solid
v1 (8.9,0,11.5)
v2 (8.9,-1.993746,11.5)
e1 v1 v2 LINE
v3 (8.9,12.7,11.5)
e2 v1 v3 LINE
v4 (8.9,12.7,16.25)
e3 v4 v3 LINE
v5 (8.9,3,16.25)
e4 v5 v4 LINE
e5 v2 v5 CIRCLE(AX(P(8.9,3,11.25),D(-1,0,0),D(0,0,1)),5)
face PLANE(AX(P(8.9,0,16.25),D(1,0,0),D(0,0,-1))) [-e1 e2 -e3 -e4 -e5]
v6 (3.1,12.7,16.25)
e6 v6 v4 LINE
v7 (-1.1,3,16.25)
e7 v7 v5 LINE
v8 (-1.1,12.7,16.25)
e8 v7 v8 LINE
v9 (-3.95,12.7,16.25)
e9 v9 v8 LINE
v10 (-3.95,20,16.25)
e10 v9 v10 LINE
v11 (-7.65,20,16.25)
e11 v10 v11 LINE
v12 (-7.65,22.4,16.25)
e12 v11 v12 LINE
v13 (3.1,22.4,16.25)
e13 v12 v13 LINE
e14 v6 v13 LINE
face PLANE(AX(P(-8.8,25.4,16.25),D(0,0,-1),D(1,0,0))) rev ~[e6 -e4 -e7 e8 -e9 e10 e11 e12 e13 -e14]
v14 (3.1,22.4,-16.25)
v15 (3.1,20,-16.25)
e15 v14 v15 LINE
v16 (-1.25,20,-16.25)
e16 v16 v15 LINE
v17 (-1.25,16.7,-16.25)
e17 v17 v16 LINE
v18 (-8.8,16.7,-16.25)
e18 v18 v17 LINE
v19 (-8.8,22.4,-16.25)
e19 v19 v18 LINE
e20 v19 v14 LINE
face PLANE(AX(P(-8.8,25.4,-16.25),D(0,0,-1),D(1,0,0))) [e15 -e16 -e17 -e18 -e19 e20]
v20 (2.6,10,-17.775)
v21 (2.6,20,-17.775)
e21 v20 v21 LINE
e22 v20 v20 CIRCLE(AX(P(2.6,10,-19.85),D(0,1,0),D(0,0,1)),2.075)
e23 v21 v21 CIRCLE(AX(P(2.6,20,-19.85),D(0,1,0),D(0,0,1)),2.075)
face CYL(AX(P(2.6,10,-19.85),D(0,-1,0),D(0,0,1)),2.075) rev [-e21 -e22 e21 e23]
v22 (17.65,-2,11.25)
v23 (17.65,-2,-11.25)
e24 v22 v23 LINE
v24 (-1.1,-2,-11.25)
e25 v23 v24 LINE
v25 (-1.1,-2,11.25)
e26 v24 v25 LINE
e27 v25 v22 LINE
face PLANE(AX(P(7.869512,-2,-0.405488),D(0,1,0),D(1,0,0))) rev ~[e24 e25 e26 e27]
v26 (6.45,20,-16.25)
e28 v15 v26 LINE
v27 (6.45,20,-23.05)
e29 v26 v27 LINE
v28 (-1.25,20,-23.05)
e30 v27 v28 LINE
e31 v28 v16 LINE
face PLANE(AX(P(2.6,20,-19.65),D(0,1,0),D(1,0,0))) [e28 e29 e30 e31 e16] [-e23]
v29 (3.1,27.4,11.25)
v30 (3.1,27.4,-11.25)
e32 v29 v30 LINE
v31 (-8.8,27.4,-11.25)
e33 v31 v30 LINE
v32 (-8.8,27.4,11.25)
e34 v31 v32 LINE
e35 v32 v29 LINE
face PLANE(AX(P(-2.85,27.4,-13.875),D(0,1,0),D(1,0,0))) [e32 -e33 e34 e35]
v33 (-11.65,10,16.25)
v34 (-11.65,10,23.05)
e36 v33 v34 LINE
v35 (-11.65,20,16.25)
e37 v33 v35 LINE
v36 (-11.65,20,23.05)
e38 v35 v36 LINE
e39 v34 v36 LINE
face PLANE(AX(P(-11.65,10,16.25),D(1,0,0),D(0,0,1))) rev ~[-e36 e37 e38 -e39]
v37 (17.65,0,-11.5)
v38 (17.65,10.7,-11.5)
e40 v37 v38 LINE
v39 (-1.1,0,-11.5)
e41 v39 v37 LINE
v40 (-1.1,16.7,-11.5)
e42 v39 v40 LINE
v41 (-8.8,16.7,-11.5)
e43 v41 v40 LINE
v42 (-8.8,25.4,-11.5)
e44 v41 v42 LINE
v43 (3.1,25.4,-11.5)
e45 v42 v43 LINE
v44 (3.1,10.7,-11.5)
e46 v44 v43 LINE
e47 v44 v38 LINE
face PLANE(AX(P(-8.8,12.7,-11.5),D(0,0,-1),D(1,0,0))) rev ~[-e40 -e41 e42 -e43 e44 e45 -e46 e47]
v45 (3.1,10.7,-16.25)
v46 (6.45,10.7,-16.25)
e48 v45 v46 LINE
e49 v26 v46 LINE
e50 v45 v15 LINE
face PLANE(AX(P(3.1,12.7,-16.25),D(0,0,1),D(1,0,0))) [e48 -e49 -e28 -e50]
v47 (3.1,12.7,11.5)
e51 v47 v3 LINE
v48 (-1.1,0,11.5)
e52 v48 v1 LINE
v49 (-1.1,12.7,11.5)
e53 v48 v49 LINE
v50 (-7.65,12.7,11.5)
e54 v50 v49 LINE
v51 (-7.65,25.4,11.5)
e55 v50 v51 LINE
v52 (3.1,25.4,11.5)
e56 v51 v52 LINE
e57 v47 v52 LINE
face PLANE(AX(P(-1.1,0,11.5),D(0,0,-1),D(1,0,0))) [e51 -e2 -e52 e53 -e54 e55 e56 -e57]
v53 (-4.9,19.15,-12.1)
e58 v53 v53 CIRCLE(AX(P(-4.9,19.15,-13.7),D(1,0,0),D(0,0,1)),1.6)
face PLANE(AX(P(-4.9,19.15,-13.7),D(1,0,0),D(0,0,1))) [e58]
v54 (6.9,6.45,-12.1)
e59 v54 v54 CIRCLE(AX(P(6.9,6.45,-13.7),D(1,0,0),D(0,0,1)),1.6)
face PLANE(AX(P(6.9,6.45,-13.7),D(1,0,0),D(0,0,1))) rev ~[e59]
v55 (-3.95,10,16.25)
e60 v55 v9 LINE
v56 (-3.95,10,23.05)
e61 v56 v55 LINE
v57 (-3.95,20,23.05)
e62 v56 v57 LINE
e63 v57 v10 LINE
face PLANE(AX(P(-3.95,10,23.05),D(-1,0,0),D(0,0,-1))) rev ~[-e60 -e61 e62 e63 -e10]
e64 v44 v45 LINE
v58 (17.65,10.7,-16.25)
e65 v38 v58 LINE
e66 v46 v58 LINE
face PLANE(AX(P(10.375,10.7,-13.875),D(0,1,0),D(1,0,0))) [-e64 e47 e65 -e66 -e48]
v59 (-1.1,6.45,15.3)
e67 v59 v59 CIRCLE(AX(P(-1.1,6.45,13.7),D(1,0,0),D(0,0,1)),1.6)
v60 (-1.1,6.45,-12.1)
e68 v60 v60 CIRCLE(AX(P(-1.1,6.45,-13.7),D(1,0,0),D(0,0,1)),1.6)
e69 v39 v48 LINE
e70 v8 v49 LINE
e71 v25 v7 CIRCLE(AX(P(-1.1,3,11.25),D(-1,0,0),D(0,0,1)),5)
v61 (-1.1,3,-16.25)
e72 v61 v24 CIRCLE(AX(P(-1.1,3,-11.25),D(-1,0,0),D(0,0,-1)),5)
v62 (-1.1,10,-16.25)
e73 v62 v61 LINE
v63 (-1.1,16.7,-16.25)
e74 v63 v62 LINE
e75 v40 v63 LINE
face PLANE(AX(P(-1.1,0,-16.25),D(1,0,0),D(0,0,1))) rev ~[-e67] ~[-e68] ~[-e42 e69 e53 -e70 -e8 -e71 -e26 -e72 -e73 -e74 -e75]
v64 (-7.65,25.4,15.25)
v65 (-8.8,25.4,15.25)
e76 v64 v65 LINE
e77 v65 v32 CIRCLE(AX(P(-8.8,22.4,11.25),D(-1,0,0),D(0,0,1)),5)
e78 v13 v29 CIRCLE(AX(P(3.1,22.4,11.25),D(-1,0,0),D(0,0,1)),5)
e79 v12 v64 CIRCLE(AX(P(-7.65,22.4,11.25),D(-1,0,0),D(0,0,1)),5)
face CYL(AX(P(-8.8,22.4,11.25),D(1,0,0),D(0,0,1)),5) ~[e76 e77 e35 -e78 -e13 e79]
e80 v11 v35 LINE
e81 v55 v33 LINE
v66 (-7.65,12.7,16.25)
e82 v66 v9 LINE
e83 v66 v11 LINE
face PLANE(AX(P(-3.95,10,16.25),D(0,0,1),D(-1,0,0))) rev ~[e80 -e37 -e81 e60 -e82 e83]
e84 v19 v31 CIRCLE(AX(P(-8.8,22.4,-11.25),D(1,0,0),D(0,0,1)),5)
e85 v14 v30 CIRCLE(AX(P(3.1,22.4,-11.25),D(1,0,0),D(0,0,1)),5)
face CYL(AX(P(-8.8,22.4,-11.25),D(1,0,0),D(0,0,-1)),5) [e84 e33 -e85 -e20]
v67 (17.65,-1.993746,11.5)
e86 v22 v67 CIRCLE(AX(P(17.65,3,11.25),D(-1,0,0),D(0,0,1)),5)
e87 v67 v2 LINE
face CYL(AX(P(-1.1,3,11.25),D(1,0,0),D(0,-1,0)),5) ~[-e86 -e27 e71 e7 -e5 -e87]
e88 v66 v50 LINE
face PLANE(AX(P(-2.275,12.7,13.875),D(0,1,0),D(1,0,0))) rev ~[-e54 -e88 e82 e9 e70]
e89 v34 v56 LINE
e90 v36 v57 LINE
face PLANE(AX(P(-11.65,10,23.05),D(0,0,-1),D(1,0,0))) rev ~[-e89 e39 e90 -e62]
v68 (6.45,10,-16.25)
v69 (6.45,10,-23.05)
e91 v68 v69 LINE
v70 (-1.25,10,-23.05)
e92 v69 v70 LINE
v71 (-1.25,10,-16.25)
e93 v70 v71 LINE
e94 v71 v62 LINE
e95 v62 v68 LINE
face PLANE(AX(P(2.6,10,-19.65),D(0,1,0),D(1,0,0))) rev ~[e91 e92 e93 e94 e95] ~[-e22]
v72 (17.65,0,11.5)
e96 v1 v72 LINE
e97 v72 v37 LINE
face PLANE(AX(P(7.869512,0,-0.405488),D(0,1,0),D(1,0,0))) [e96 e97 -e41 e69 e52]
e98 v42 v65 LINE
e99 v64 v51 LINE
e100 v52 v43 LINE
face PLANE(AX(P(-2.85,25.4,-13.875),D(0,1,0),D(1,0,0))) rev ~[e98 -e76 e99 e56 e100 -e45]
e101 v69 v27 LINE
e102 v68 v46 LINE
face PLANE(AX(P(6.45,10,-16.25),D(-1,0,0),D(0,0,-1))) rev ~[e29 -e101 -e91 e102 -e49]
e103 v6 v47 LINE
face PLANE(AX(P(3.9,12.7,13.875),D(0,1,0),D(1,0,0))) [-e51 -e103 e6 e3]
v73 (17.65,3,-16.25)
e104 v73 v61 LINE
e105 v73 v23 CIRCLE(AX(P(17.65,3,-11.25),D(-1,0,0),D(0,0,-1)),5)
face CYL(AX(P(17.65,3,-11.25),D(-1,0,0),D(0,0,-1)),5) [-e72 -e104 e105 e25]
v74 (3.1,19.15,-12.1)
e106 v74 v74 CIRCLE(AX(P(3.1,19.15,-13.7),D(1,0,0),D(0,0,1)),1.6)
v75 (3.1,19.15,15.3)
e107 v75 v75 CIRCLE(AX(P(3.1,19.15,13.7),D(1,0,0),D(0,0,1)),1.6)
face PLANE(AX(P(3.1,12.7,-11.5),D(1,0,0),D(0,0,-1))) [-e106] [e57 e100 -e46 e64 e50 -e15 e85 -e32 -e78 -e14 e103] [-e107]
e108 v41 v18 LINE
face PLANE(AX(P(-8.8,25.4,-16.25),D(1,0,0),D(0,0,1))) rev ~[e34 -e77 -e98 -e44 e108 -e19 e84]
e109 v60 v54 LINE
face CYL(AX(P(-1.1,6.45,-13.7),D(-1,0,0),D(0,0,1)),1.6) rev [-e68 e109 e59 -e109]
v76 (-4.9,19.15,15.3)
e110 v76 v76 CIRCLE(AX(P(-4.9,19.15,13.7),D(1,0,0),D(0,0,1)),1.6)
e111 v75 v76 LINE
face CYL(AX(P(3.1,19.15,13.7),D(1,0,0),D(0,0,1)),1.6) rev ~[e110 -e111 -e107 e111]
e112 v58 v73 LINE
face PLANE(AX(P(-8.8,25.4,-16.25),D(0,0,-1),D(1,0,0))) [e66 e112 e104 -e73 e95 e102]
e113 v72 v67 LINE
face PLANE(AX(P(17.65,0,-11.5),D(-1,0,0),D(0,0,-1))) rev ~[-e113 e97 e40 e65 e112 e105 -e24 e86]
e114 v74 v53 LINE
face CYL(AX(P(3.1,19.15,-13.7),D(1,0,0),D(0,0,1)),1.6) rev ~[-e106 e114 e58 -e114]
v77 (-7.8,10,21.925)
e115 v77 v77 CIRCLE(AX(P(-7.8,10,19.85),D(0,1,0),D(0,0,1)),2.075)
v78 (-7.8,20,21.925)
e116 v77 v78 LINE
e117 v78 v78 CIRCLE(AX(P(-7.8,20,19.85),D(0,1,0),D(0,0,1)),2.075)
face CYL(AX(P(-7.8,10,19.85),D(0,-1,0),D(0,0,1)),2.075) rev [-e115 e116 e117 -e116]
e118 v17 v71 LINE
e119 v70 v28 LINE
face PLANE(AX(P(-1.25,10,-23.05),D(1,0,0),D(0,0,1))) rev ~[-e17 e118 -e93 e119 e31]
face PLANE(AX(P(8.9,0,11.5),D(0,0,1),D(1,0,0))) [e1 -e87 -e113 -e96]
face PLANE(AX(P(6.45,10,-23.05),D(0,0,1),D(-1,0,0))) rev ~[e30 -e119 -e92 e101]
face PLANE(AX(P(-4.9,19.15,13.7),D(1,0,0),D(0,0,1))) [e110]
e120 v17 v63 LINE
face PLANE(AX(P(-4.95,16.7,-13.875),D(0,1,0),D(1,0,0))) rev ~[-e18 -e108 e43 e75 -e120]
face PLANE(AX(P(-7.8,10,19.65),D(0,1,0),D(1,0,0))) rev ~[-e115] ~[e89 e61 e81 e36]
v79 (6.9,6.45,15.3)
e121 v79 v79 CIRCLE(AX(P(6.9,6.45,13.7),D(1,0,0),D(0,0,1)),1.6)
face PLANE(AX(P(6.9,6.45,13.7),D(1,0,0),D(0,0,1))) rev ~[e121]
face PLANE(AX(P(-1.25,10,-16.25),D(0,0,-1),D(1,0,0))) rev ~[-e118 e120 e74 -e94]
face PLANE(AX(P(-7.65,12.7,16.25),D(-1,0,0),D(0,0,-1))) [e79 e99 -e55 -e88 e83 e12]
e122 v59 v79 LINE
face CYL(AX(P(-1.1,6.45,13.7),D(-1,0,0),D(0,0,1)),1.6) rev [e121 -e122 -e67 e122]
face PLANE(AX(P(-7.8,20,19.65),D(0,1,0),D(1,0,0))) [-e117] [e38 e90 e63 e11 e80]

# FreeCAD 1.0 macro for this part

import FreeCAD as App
import Part
import Sketcher
Q = App.Units.Quantity


def edges_at(feature, points):
    """Names of the edges that pass closest to the given points."""
    edges = feature.Shape.Edges
    near = lambda p: min(range(len(edges)), key=lambda i: edges[i].distToShape(Part.Vertex(*p))[0])
    return sorted({f"Edge{near(p) + 1}" for p in points})


def add_polygon(sketch, points):
    """Adds a closed chain of lines whose ends are joined by coincident constraints."""
    first, n = sketch.GeometryCount, len(points)
    for a, b in zip(points, points[1:] + points[:1]):
        sketch.addGeometry(Part.LineSegment(App.Vector(*a, 0), App.Vector(*b, 0)), False)
    for i in range(n):
        sketch.addConstraint(Sketcher.Constraint("Coincident", first + i, 2, first + (i + 1) % n, 1))

doc = App.newDocument("Part")
body = doc.addObject("PartDesign::Body", "Body")

# Sketch on XZ plane
sketch1 = body.newObject("Sketcher::SketchObject", "Sketch")
sketch1.AttachmentSupport = (doc.getObject("XZ_Plane"), [""])
sketch1.MapMode = "FlatFace"
add_polygon(sketch1, [(-1.1, -16.25), (-1.1, 16.25), (8.9, 16.25), (8.9, 11.5), (17.65, 11.5), (17.65, -16.25)])  # lines 0-5
sketch1.addConstraint([
    Sketcher.Constraint("Vertical", 0),
    Sketcher.Constraint("Horizontal", 1),
    Sketcher.Constraint("Vertical", 2),
    Sketcher.Constraint("Horizontal", 3),
    Sketcher.Constraint("Vertical", 4),
    Sketcher.Constraint("Horizontal", 5),
    Sketcher.Constraint("DistanceX", 1, 1, 1, 2, Q("10 mm")),
    Sketcher.Constraint("DistanceY", 0, 1, 0, 2, Q("32.5 mm")),
    Sketcher.Constraint("DistanceX", 3, 1, 3, 2, Q("8.75 mm")),
    Sketcher.Constraint("DistanceY", 2, 2, 2, 1, Q("4.75 mm")),
    Sketcher.Constraint("DistanceX", 0, 2, -1, 1, Q("1.1 mm")),
    Sketcher.Constraint("DistanceY", -1, 1, 2, 2, Q("11.5 mm")),
])
pad1 = body.newObject("PartDesign::Pad", "Pad")
pad1.Profile = sketch1
pad1.Length = 2

# Sketch on XZ plane
sketch2 = body.newObject("Sketcher::SketchObject", "Sketch001")
sketch2.AttachmentSupport = (doc.getObject("XZ_Plane"), [""])
sketch2.MapMode = "FlatFace"
add_polygon(sketch2, [(-1.1, -16.25), (-1.1, -11.5), (17.65, -11.5), (17.65, -16.25)])  # lines 0-3
add_polygon(sketch2, [(-1.1, 11.5), (-1.1, 16.25), (8.9, 16.25), (8.9, 11.5)])  # lines 4-7
sketch2.addConstraint([
    Sketcher.Constraint("Vertical", 0),
    Sketcher.Constraint("Horizontal", 1),
    Sketcher.Constraint("Vertical", 2),
    Sketcher.Constraint("Horizontal", 3),
    Sketcher.Constraint("Vertical", 4),
    Sketcher.Constraint("Horizontal", 5),
    Sketcher.Constraint("Vertical", 6),
    Sketcher.Constraint("Horizontal", 7),
    Sketcher.Constraint("Symmetric", 3, 2, 4, 2, -1),
    Sketcher.Constraint("Equal", 2, 4),
    Sketcher.Constraint("DistanceX", 5, 1, 5, 2, Q("10 mm")),
    Sketcher.Constraint("DistanceY", 1, 2, 6, 2, Q("23 mm")),
    Sketcher.Constraint("DistanceX", 1, 1, 1, 2, Q("18.75 mm")),
    Sketcher.Constraint("DistanceY", 0, 1, 0, 2, Q("4.75 mm")),
    Sketcher.Constraint("DistanceX", 0, 2, -1, 1, Q("1.1 mm")),
])
pad2 = body.newObject("PartDesign::Pad", "Pad001")
pad2.Profile = sketch2
pad2.Length = 12.7
pad2.Reversed = True

# Sketch on XZ plane
sketch3 = body.newObject("Sketcher::SketchObject", "Sketch002")
sketch3.AttachmentSupport = (doc.getObject("XZ_Plane"), [""])
sketch3.MapMode = "FlatFace"
sketch3.AttachmentOffset = App.Placement(App.Vector(0, 0, -12.7), App.Rotation())
add_polygon(sketch3, [(-8.8, -16.25), (-8.8, -11.5), (3.1, -11.5), (3.1, -16.25)])  # lines 0-3
add_polygon(sketch3, [(-7.65, 11.5), (-7.65, 16.25), (3.1, 16.25), (3.1, 11.5)])  # lines 4-7
sketch3.addConstraint([
    Sketcher.Constraint("Vertical", 0),
    Sketcher.Constraint("Horizontal", 1),
    Sketcher.Constraint("Vertical", 2),
    Sketcher.Constraint("Horizontal", 3),
    Sketcher.Constraint("Vertical", 4),
    Sketcher.Constraint("Horizontal", 5),
    Sketcher.Constraint("Vertical", 6),
    Sketcher.Constraint("Horizontal", 7),
    Sketcher.Constraint("Symmetric", 2, 2, 5, 2, -1),
    Sketcher.Constraint("Equal", 2, 4),
    Sketcher.Constraint("DistanceX", 1, 1, 1, 2, Q("11.9 mm")),
    Sketcher.Constraint("DistanceY", 1, 2, 6, 2, Q("23 mm")),
    Sketcher.Constraint("DistanceX", 5, 1, 5, 2, Q("10.75 mm")),
    Sketcher.Constraint("DistanceY", 0, 1, 0, 2, Q("4.75 mm")),
    Sketcher.Constraint("DistanceX", 0, 2, -1, 1, Q("8.8 mm")),
])
pad3 = body.newObject("PartDesign::Pad", "Pad002")
pad3.Profile = sketch3
pad3.Length = 12.7
pad3.Reversed = True

# Sketch on XZ plane
sketch4 = body.newObject("Sketcher::SketchObject", "Sketch003")
sketch4.AttachmentSupport = (doc.getObject("XZ_Plane"), [""])
sketch4.MapMode = "FlatFace"
sketch4.AttachmentOffset = App.Placement(App.Vector(0, 0, -25.4), App.Rotation())
add_polygon(sketch4, [(-8.8, -16.25), (-8.8, 16.25), (3.1, 16.25), (3.1, -16.25)])  # lines 0-3
sketch4.addConstraint([
    Sketcher.Constraint("Vertical", 0),
    Sketcher.Constraint("Horizontal", 1),
    Sketcher.Constraint("Vertical", 2),
    Sketcher.Constraint("Horizontal", 3),
    Sketcher.Constraint("DistanceX", 1, 1, 1, 2, Q("11.9 mm")),
    Sketcher.Constraint("DistanceY", 0, 1, 0, 2, Q("32.5 mm")),
    Sketcher.Constraint("DistanceX", 0, 2, -1, 1, Q("8.8 mm")),
    Sketcher.Constraint("DistanceY", -1, 1, 0, 2, Q("16.25 mm")),
])
pad4 = body.newObject("PartDesign::Pad", "Pad003")
pad4.Profile = sketch4
pad4.Length = 2
pad4.Reversed = True

# Sketch on YZ plane
sketch5 = body.newObject("Sketcher::SketchObject", "Sketch004")
sketch5.AttachmentSupport = (doc.getObject("YZ_Plane"), [""])
sketch5.MapMode = "FlatFace"
sketch5.AttachmentOffset = App.Placement(App.Vector(0, 0, -1.1), App.Rotation())
sketch5.addGeometry([
    Part.Circle(App.Vector(6.45, 13.7, 0), App.Vector(0, 0, 1), 1.6),
    Part.Circle(App.Vector(6.45, -13.7, 0), App.Vector(0, 0, 1), 1.6),
], False)
sketch5.addConstraint([
    Sketcher.Constraint("Equal", 0, 1),
    Sketcher.Constraint("Symmetric", 0, 3, 1, 3, -1),
    Sketcher.Constraint("Diameter", 0, Q("3.2 mm")),
    Sketcher.Constraint("DistanceY", -1, 1, 0, 3, Q("13.7 mm")),
    Sketcher.Constraint("DistanceX", -1, 1, 0, 3, Q("6.45 mm")),
])
pocket1 = body.newObject("PartDesign::Pocket", "Pocket")
pocket1.Profile = sketch5
pocket1.Length = 8
pocket1.Reversed = True

# Sketch on YZ plane
sketch6 = body.newObject("Sketcher::SketchObject", "Sketch005")
sketch6.AttachmentSupport = (doc.getObject("YZ_Plane"), [""])
sketch6.MapMode = "FlatFace"
sketch6.AttachmentOffset = App.Placement(App.Vector(0, 0, 3.1), App.Rotation())
sketch6.addGeometry([
    Part.Circle(App.Vector(19.15, -13.7, 0), App.Vector(0, 0, 1), 1.6),
    Part.Circle(App.Vector(19.15, 13.7, 0), App.Vector(0, 0, 1), 1.6),
], False)
sketch6.addConstraint([
    Sketcher.Constraint("Equal", 0, 1),
    Sketcher.Constraint("Symmetric", 0, 3, 1, 3, -1),
    Sketcher.Constraint("Diameter", 0, Q("3.2 mm")),
    Sketcher.Constraint("DistanceY", 0, 3, -1, 1, Q("13.7 mm")),
    Sketcher.Constraint("DistanceX", -1, 1, 0, 3, Q("19.15 mm")),
])
pocket2 = body.newObject("PartDesign::Pocket", "Pocket001")
pocket2.Profile = sketch6
pocket2.Length = 8

# Sketch on XZ plane
sketch7 = body.newObject("Sketcher::SketchObject", "Sketch006")
sketch7.AttachmentSupport = (doc.getObject("XZ_Plane"), [""])
sketch7.MapMode = "FlatFace"
sketch7.AttachmentOffset = App.Placement(App.Vector(0, 0, -10), App.Rotation())
add_polygon(sketch7, [(-1.25, -16.25), (6.45, -16.25), (6.45, -23.05), (-1.25, -23.05)])  # lines 0-3
sketch7.addGeometry(Part.Circle(App.Vector(2.6, -19.85, 0), App.Vector(0, 0, 1), 2.075), False)  # 4
add_polygon(sketch7, [(-3.95, 23.05), (-3.95, 16.25), (-11.65, 16.25), (-11.65, 23.05)])  # lines 5-8
sketch7.addGeometry(Part.Circle(App.Vector(-7.8, 19.85, 0), App.Vector(0, 0, 1), 2.075), False)  # 9
sketch7.addConstraint([
    Sketcher.Constraint("Horizontal", 0),
    Sketcher.Constraint("Vertical", 1),
    Sketcher.Constraint("Horizontal", 2),
    Sketcher.Constraint("Vertical", 3),
    Sketcher.Constraint("Vertical", 5),
    Sketcher.Constraint("Horizontal", 6),
    Sketcher.Constraint("Vertical", 7),
    Sketcher.Constraint("Horizontal", 8),
    Sketcher.Constraint("Equal", 4, 9),
    Sketcher.Constraint("Equal", 2, 6),
    Sketcher.Constraint("Equal", 3, 5),
    Sketcher.Constraint("Diameter", 4, Q("4.15 mm")),
    Sketcher.Constraint("DistanceX", 0, 1, 0, 2, Q("7.7 mm")),
    Sketcher.Constraint("DistanceY", 1, 2, 1, 1, Q("6.8 mm")),
    Sketcher.Constraint("DistanceX", -1, 1, 4, 3, Q("2.6 mm")),
    Sketcher.Constraint("DistanceX", 9, 3, -1, 1, Q("7.8 mm")),
    Sketcher.Constraint("DistanceY", 4, 3, 9, 3, Q("39.7 mm")),
    Sketcher.Constraint("DistanceY", 4, 3, 0, 2, Q("3.6 mm")),
    Sketcher.Constraint("DistanceY", 5, 2, 9, 3, Q("3.6 mm")),
    Sketcher.Constraint("DistanceX", 5, 2, 3, 2, Q("2.7 mm")),
    Sketcher.Constraint("DistanceY", 4, 3, -1, 1, Q("19.85 mm")),
    Sketcher.Constraint("DistanceX", -1, 1, 0, 2, Q("6.45 mm")),
])
pad5 = body.newObject("PartDesign::Pad", "Pad004")
pad5.Profile = sketch7
pad5.Length = 10
pad5.Reversed = True
doc.recompute()

fillet = body.newObject("PartDesign::Fillet", "Fillet")
fillet.Base = (pad5, edges_at(pad5, [
    (3.9, -2, 16.25),
    (-2.85, 27.4, 16.25),
    (8.275, -2, -16.25),
    (-2.85, 27.4, -16.25),
]))
fillet.Radius = 5

# Sketch on XZ plane
sketch8 = body.newObject("Sketcher::SketchObject", "Sketch007")
sketch8.AttachmentSupport = (doc.getObject("XZ_Plane"), [""])
sketch8.MapMode = "FlatFace"
sketch8.AttachmentOffset = App.Placement(App.Vector(0, 0, -12.7), App.Rotation())
add_polygon(sketch8, [(3.1, -16.25), (3.1, -11.5), (17.65, -11.5), (17.65, -16.25)])  # lines 0-3
sketch8.addConstraint([
    Sketcher.Constraint("Vertical", 0),
    Sketcher.Constraint("Horizontal", 1),
    Sketcher.Constraint("Vertical", 2),
    Sketcher.Constraint("Horizontal", 3),
    Sketcher.Constraint("DistanceX", 1, 1, 1, 2, Q("14.55 mm")),
    Sketcher.Constraint("DistanceY", 0, 1, 0, 2, Q("4.75 mm")),
    Sketcher.Constraint("DistanceX", -1, 1, 0, 2, Q("3.1 mm")),
    Sketcher.Constraint("DistanceY", 0, 2, -1, 1, Q("11.5 mm")),
])
pocket3 = body.newObject("PartDesign::Pocket", "Pocket002")
pocket3.Profile = sketch8
pocket3.Length = 2
pocket3.Reversed = True

# Sketch on XZ plane
sketch9 = body.newObject("Sketcher::SketchObject", "Sketch008")
sketch9.AttachmentSupport = (doc.getObject("XZ_Plane"), [""])
sketch9.MapMode = "FlatFace"
sketch9.AttachmentOffset = App.Placement(App.Vector(0, 0, -12.7), App.Rotation())
add_polygon(sketch9, [(-8.8, -16.25), (-8.8, -11.5), (-1.1, -11.5), (-1.1, -16.25)])  # lines 0-3
sketch9.addConstraint([
    Sketcher.Constraint("Vertical", 0),
    Sketcher.Constraint("Horizontal", 1),
    Sketcher.Constraint("Vertical", 2),
    Sketcher.Constraint("Horizontal", 3),
    Sketcher.Constraint("DistanceX", 1, 1, 1, 2, Q("7.7 mm")),
    Sketcher.Constraint("DistanceY", 0, 1, 0, 2, Q("4.75 mm")),
    Sketcher.Constraint("DistanceX", 0, 2, -1, 1, Q("8.8 mm")),
    Sketcher.Constraint("DistanceY", 0, 2, -1, 1, Q("11.5 mm")),
])
pocket4 = body.newObject("PartDesign::Pocket", "Pocket003")
pocket4.Profile = sketch9
pocket4.Length = 4

doc.recompute()
